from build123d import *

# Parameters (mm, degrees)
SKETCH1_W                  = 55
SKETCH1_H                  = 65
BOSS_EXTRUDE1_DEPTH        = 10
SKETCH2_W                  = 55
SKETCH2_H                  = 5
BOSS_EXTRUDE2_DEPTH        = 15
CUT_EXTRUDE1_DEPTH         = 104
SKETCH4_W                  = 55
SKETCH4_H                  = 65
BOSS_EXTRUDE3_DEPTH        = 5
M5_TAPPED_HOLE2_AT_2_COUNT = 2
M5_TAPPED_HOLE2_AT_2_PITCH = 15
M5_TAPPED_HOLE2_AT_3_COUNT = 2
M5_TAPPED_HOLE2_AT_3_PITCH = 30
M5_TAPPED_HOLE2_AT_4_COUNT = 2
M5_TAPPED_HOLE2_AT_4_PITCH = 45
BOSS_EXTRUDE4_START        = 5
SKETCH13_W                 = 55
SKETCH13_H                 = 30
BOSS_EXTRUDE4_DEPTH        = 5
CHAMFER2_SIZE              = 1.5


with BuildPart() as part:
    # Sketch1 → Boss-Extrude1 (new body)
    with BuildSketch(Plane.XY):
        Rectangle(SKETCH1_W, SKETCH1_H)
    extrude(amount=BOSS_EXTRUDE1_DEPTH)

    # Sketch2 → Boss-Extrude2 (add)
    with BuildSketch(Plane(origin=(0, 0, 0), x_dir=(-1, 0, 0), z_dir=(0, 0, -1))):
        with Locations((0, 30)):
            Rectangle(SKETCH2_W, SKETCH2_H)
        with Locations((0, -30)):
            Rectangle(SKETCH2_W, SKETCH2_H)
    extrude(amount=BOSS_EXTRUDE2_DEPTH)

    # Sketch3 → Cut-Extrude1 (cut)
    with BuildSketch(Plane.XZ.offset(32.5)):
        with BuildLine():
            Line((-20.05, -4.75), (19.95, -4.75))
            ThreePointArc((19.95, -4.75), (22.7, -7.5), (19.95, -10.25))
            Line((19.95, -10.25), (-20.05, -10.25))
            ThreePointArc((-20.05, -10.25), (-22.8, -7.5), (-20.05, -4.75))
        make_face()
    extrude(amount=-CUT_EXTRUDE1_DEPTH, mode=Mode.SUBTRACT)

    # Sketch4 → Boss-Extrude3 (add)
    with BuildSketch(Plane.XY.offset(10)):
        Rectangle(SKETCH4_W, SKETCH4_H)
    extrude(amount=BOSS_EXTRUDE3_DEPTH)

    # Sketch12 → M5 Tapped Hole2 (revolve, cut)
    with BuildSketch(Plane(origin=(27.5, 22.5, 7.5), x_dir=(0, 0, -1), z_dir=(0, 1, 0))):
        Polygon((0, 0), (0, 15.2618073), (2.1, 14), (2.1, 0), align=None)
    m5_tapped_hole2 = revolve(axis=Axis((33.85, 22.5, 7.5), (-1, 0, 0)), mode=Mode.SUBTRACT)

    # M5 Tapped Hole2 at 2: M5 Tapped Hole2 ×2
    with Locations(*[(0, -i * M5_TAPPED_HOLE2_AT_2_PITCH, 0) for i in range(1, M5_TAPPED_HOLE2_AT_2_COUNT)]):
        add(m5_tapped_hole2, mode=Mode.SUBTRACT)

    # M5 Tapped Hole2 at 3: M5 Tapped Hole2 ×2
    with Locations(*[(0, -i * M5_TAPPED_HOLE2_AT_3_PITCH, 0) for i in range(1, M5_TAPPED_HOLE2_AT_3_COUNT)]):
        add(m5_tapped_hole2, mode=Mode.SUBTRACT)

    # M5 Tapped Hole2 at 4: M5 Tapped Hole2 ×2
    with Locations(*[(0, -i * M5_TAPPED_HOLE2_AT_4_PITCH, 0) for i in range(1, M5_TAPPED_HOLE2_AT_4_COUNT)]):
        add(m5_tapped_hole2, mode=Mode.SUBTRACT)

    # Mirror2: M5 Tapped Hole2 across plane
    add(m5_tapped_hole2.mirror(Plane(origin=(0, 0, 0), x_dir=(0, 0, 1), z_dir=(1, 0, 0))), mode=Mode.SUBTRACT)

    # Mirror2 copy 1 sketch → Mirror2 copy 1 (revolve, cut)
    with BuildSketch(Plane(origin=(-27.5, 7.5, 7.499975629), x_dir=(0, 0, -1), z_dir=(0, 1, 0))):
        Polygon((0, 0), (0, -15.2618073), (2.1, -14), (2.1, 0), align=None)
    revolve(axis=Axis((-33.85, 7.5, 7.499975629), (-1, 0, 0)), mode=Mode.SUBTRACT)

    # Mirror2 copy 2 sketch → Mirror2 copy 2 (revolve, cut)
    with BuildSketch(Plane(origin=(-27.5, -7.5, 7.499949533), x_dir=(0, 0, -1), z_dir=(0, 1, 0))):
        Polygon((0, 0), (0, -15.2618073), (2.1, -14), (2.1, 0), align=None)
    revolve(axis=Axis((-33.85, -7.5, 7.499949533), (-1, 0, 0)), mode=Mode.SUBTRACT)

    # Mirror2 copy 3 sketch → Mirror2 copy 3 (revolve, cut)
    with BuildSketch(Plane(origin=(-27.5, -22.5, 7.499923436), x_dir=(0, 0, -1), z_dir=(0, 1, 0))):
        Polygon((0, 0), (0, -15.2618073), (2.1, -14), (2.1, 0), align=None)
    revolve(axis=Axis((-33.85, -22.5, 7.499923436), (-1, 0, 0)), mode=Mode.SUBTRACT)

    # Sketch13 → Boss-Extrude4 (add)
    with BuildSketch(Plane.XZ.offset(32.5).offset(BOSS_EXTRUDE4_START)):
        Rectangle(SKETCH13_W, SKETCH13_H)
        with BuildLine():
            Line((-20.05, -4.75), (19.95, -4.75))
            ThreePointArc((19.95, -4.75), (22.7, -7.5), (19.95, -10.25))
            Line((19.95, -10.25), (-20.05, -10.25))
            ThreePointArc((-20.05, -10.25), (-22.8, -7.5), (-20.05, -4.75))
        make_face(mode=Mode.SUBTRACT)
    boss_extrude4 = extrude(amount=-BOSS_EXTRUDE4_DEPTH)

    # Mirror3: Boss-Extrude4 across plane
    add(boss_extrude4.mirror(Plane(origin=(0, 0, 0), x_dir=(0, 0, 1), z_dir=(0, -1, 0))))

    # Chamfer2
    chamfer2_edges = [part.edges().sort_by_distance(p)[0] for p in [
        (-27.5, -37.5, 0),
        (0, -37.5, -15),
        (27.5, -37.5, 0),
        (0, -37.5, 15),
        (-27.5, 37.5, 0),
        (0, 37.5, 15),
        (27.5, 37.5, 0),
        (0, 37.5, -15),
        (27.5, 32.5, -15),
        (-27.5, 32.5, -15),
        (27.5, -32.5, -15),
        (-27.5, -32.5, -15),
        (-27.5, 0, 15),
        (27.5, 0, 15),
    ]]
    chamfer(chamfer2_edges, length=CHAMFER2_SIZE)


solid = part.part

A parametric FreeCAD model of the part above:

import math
import FreeCAD as App
import Part
import Sketcher
from FreeCAD import Vector
Q = App.Units.Quantity


def edges_at(feature, points):
    """Names of the edges that pass closest to the given points."""
    edges = feature.Shape.Edges
    near = lambda p: min(range(len(edges)), key=lambda i: edges[i].distToShape(Part.Vertex(*p))[0])
    return sorted({f"Edge{near(p) + 1}" for p in points})

doc = App.newDocument("Part")
params = doc.addObject("Spreadsheet::Sheet", "Params")
for row, (alias, value) in enumerate([
    ("sketch1_width", "55 mm"),
    ("sketch1_height", "65 mm"),
    ("pad1_length", "10 mm"),
    ("sketch2_width", "55 mm"),
    ("sketch2_height", "5 mm"),
    ("pad2_length", "15 mm"),
    ("sketch3_width", "40 mm"),
    ("sketch3_radius", "2.75 mm"),
    ("pocket1_length", "104 mm"),
    ("sketch4_width", "55 mm"),
    ("sketch4_height", "65 mm"),
    ("pad3_length", "5 mm"),
    ("sketch5_width", "14 mm"),
    ("sketch5_height", "2.1 mm"),
    ("groove_angle", "360 deg"),
    ("linearpattern_pitch", "15 mm"),
    ("linearpattern2_pitch", "30 mm"),
    ("linearpattern3_pitch", "45 mm"),
    ("sketch6_width", "14 mm"),
    ("sketch6_height", "2.1 mm"),
    ("groove2_angle", "360 deg"),
    ("sketch7_width", "14 mm"),
    ("sketch7_height", "2.1 mm"),
    ("groove3_angle", "360 deg"),
    ("sketch8_width", "14 mm"),
    ("sketch8_height", "2.1 mm"),
    ("groove4_angle", "360 deg"),
    ("sketch9_width", "55 mm"),
    ("sketch9_width2", "40 mm"),
    ("sketch9_height", "30 mm"),
    ("sketch9_radius", "2.75 mm"),
    ("pad4_length", "5 mm"),
    ("chamfer_size", "1.5 mm"),
], start=1):
    params.set(f"A{row}", alias)
    params.set(f"B{row}", "=" + value)
    params.setAlias(f"B{row}", alias)

body = doc.addObject("PartDesign::Body", "Body")

sketch1 = doc.addObject("Sketcher::SketchObject", "Sketch")
body.addObject(sketch1)
sketch1.AttachmentSupport = (doc.XY_Plane, [""])
sketch1.MapMode = "FlatFace"
sketch1.addGeometry([
    Part.LineSegment(Vector(-28, 32, 0), Vector(-28, -32, 0)),
    Part.LineSegment(Vector(-28, -32, 0), Vector(28, -32, 0)),
    Part.LineSegment(Vector(28, -32, 0), Vector(28, 32, 0)),
    Part.LineSegment(Vector(28, 32, 0), Vector(-28, 32, 0)),
], False)
sketch1.addConstraint([
    Sketcher.Constraint("Coincident", 0, 2, 1, 1),
    Sketcher.Constraint("Coincident", 1, 2, 2, 1),
    Sketcher.Constraint("Coincident", 2, 2, 3, 1),
    Sketcher.Constraint("Coincident", 3, 2, 0, 1),
    Sketcher.Constraint("Vertical", 0),
    Sketcher.Constraint("Horizontal", 1),
    Sketcher.Constraint("Vertical", 2),
    Sketcher.Constraint("Horizontal", 3),
    Sketcher.Constraint("Symmetric", 0, 2, 2, 2, -1, 1),
    Sketcher.Constraint("DistanceX", 1, 1, 1, 2, Q("55 mm")),
    Sketcher.Constraint("DistanceY", 0, 2, 0, 1, Q("65 mm")),
])
sketch1.setExpression("Constraints[9]", "Params.sketch1_width")
sketch1.setExpression("Constraints[10]", "Params.sketch1_height")
pad1 = doc.addObject("PartDesign::Pad", "Pad")
body.addObject(pad1)
pad1.Profile = sketch1
pad1.setExpression("Length", "Params.pad1_length")

sketch2 = doc.addObject("Sketcher::SketchObject", "Sketch001")
body.addObject(sketch2)
sketch2.AttachmentSupport = (doc.XY_Plane, [""])
sketch2.MapMode = "FlatFace"
sketch2.addGeometry([
    Part.LineSegment(Vector(28, 32, 0), Vector(28, 28, 0)),
    Part.LineSegment(Vector(28, 28, 0), Vector(-28, 28, 0)),
    Part.LineSegment(Vector(-28, 28, 0), Vector(-28, 32, 0)),
    Part.LineSegment(Vector(-28, 32, 0), Vector(28, 32, 0)),
    Part.LineSegment(Vector(28, -28, 0), Vector(28, -32, 0)),
    Part.LineSegment(Vector(28, -32, 0), Vector(-28, -32, 0)),
    Part.LineSegment(Vector(-28, -32, 0), Vector(-28, -28, 0)),
    Part.LineSegment(Vector(-28, -28, 0), Vector(28, -28, 0)),
], False)
sketch2.addConstraint([
    Sketcher.Constraint("Coincident", 0, 2, 1, 1),
    Sketcher.Constraint("Coincident", 1, 2, 2, 1),
    Sketcher.Constraint("Coincident", 2, 2, 3, 1),
    Sketcher.Constraint("Coincident", 3, 2, 0, 1),
    Sketcher.Constraint("Coincident", 4, 2, 5, 1),
    Sketcher.Constraint("Coincident", 5, 2, 6, 1),
    Sketcher.Constraint("Coincident", 6, 2, 7, 1),
    Sketcher.Constraint("Coincident", 7, 2, 4, 1),
    Sketcher.Constraint("Vertical", 0),
    Sketcher.Constraint("Horizontal", 1),
    Sketcher.Constraint("Vertical", 2),
    Sketcher.Constraint("Horizontal", 3),
    Sketcher.Constraint("Vertical", 4),
    Sketcher.Constraint("Horizontal", 5),
    Sketcher.Constraint("Vertical", 6),
    Sketcher.Constraint("Horizontal", 7),
    Sketcher.Constraint("Symmetric", 2, 2, 4, 2, -1, 1),
    Sketcher.Constraint("Symmetric", 0, 2, 6, 2, -1, 1),
    Sketcher.Constraint("Vertical", 3, 2, 4, 2),
    Sketcher.Constraint("DistanceX", 1, 2, 1, 1, Q("55 mm")),
    Sketcher.Constraint("DistanceY", 0, 2, 0, 1, Q("5 mm")),
    Sketcher.Constraint("DistanceY", 4, 2, 0, 2, Q("60 mm")),
])
sketch2.setExpression("Constraints[19]", "Params.sketch2_width")
sketch2.setExpression("Constraints[20]", "Params.sketch2_height")
pad2 = doc.addObject("PartDesign::Pad", "Pad001")
body.addObject(pad2)
pad2.Profile = sketch2
pad2.setExpression("Length", "Params.pad2_length")
pad2.Reversed = True

sketch3 = doc.addObject("Sketcher::SketchObject", "Sketch002")
body.addObject(sketch3)
sketch3.AttachmentSupport = (doc.XZ_Plane, [""])
sketch3.MapMode = "FlatFace"
sketch3.AttachmentOffset = App.Placement(Vector(0, 0, 32.5), App.Rotation())
sketch3.addGeometry([
    Part.LineSegment(Vector(19.9, -4.8, 0), Vector(-20.1, -4.8, 0)),
    Part.ArcOfCircle(Part.Circle(Vector(-20.1, -7.5, 0), Vector(0, 0, 1), 2.8), math.radians(90), math.radians(270)),
    Part.LineSegment(Vector(-20.1, -10.2, 0), Vector(19.9, -10.2, 0)),
    Part.ArcOfCircle(Part.Circle(Vector(19.9, -7.5, 0), Vector(0, 0, 1), 2.8), math.radians(-90), math.radians(90)),
], False)
sketch3.addConstraint([
    Sketcher.Constraint("Tangent", 0, 2, 1, 1),
    Sketcher.Constraint("Tangent", 1, 2, 2, 1),
    Sketcher.Constraint("Tangent", 2, 2, 3, 1),
    Sketcher.Constraint("Tangent", 3, 2, 0, 1),
    Sketcher.Constraint("Horizontal", 0),
    Sketcher.Constraint("Horizontal", 2),
    Sketcher.Constraint("DistanceX", 0, 2, 0, 1, Q("40 mm")),
    Sketcher.Constraint("Radius", 1, Q("2.75 mm")),
    Sketcher.Constraint("DistanceY", 1, 3, -1, 1, Q("7.5 mm")),
    Sketcher.Constraint("DistanceX", 1, 3, -1, 1, Q("20.05 mm")),
])
sketch3.setExpression("Constraints[6]", "Params.sketch3_width")
sketch3.setExpression("Constraints[7]", "Params.sketch3_radius")
pocket1 = doc.addObject("PartDesign::Pocket", "Pocket")
body.addObject(pocket1)
pocket1.Profile = sketch3
pocket1.setExpression("Length", "Params.pocket1_length")

sketch4 = doc.addObject("Sketcher::SketchObject", "Sketch003")
body.addObject(sketch4)
sketch4.AttachmentSupport = (doc.XY_Plane, [""])
sketch4.MapMode = "FlatFace"
sketch4.AttachmentOffset = App.Placement(Vector(0, 0, 10), App.Rotation())
sketch4.addGeometry([
    Part.LineSegment(Vector(-28, 32, 0), Vector(-28, -32, 0)),
    Part.LineSegment(Vector(-28, -32, 0), Vector(28, -32, 0)),
    Part.LineSegment(Vector(28, -32, 0), Vector(28, 32, 0)),
    Part.LineSegment(Vector(28, 32, 0), Vector(-28, 32, 0)),
], False)
sketch4.addConstraint([
    Sketcher.Constraint("Coincident", 0, 2, 1, 1),
    Sketcher.Constraint("Coincident", 1, 2, 2, 1),
    Sketcher.Constraint("Coincident", 2, 2, 3, 1),
    Sketcher.Constraint("Coincident", 3, 2, 0, 1),
    Sketcher.Constraint("Vertical", 0),
    Sketcher.Constraint("Horizontal", 1),
    Sketcher.Constraint("Vertical", 2),
    Sketcher.Constraint("Horizontal", 3),
    Sketcher.Constraint("Symmetric", 0, 2, 2, 2, -1, 1),
    Sketcher.Constraint("DistanceX", 1, 1, 1, 2, Q("55 mm")),
    Sketcher.Constraint("DistanceY", 0, 2, 0, 1, Q("65 mm")),
])
sketch4.setExpression("Constraints[9]", "Params.sketch4_width")
sketch4.setExpression("Constraints[10]", "Params.sketch4_height")
pad3 = doc.addObject("PartDesign::Pad", "Pad002")
body.addObject(pad3)
pad3.Profile = sketch4
pad3.setExpression("Length", "Params.pad3_length")

sketch5 = doc.addObject("Sketcher::SketchObject", "Sketch004")
body.addObject(sketch5)
sketch5.AttachmentSupport = (doc.XZ_Plane, [""])
sketch5.MapMode = "FlatFace"
sketch5.AttachmentOffset = App.Placement(Vector(0, 0, -22.5), App.Rotation())
sketch5.addGeometry([
    Part.LineSegment(Vector(12.2, 7.5, 0), Vector(27.5, 7.5, 0)),
    Part.LineSegment(Vector(27.5, 7.5, 0), Vector(27.5, 5.4, 0)),
    Part.LineSegment(Vector(27.5, 5.4, 0), Vector(13.5, 5.4, 0)),
    Part.LineSegment(Vector(13.5, 5.4, 0), Vector(12.2, 7.5, 0)),
], False)
sketch5.addGeometry(Part.LineSegment(Vector(27.5, 7.5, 0), Vector(12.2, 7.5, 0)), True)
sketch5.addConstraint([
    Sketcher.Constraint("Coincident", 0, 2, 1, 1),
    Sketcher.Constraint("Coincident", 1, 2, 2, 1),
    Sketcher.Constraint("Coincident", 2, 2, 3, 1),
    Sketcher.Constraint("Coincident", 3, 2, 0, 1),
    Sketcher.Constraint("Horizontal", 0),
    Sketcher.Constraint("Vertical", 1),
    Sketcher.Constraint("Horizontal", 2),
    Sketcher.Constraint("Horizontal", 4),
    Sketcher.Constraint("Coincident", 4, 1, 0, 2),
    Sketcher.Constraint("Equal", 0, 4),
    Sketcher.Constraint("DistanceX", 2, 2, 2, 1, Q("14 mm")),
    Sketcher.Constraint("Angle", 3, Q("121 deg")),
    Sketcher.Constraint("DistanceY", 1, 2, 1, 1, Q("2.1 mm")),
    Sketcher.Constraint("DistanceX", -1, 1, 0, 2, Q("27.5 mm")),
    Sketcher.Constraint("DistanceY", -1, 1, 0, 2, Q("7.5 mm")),
])
sketch5.setExpression("Constraints[10]", "Params.sketch5_width")
sketch5.setExpression("Constraints[12]", "Params.sketch5_height")
groove = doc.addObject("PartDesign::Groove", "Groove")
body.addObject(groove)
groove.Profile = sketch5
groove.ReferenceAxis = (sketch5, ["Axis0"])
groove.setExpression("Angle", "Params.groove_angle")
doc.recompute()

linearpattern = doc.addObject("PartDesign::LinearPattern", "LinearPattern")
body.addObject(linearpattern)
linearpattern.Originals = [groove]
linearpattern.Direction = (doc.Y_Axis, [""])
linearpattern.Mode = "offset"
linearpattern.setExpression("Offset", "Params.linearpattern_pitch")
linearpattern.Occurrences = 2
linearpattern.Reversed = True
body.Tip = linearpattern
doc.recompute()

linearpattern2 = doc.addObject("PartDesign::LinearPattern", "LinearPattern001")
body.addObject(linearpattern2)
linearpattern2.Originals = [groove]
linearpattern2.Direction = (doc.Y_Axis, [""])
linearpattern2.Mode = "offset"
linearpattern2.setExpression("Offset", "Params.linearpattern2_pitch")
linearpattern2.Occurrences = 2
linearpattern2.Reversed = True
body.Tip = linearpattern2
doc.recompute()

linearpattern3 = doc.addObject("PartDesign::LinearPattern", "LinearPattern002")
body.addObject(linearpattern3)
linearpattern3.Originals = [groove]
linearpattern3.Direction = (doc.Y_Axis, [""])
linearpattern3.Mode = "offset"
linearpattern3.setExpression("Offset", "Params.linearpattern3_pitch")
linearpattern3.Occurrences = 2
linearpattern3.Reversed = True
body.Tip = linearpattern3
doc.recompute()

mirrored = doc.addObject("PartDesign::Mirrored", "Mirrored")
body.addObject(mirrored)
mirrored.Originals = [groove]
mirrored.MirrorPlane = (doc.YZ_Plane, [""])
body.Tip = mirrored

sketch6 = doc.addObject("Sketcher::SketchObject", "Sketch005")
body.addObject(sketch6)
sketch6.AttachmentSupport = (doc.XZ_Plane, [""])
sketch6.MapMode = "FlatFace"
sketch6.AttachmentOffset = App.Placement(Vector(0, 0, -7.5), App.Rotation())
sketch6.addGeometry([
    Part.LineSegment(Vector(-27.5, 7.5, 0), Vector(-12.2, 7.5, 0)),
    Part.LineSegment(Vector(-12.2, 7.5, 0), Vector(-13.5, 5.4, 0)),
    Part.LineSegment(Vector(-13.5, 5.4, 0), Vector(-27.5, 5.4, 0)),
    Part.LineSegment(Vector(-27.5, 5.4, 0), Vector(-27.5, 7.5, 0)),
], False)
sketch6.addGeometry(Part.LineSegment(Vector(-12.2, 7.5, 0), Vector(-27.5, 7.5, 0)), True)
sketch6.addConstraint([
    Sketcher.Constraint("Coincident", 0, 2, 1, 1),
    Sketcher.Constraint("Coincident", 1, 2, 2, 1),
    Sketcher.Constraint("Coincident", 2, 2, 3, 1),
    Sketcher.Constraint("Coincident", 3, 2, 0, 1),
    Sketcher.Constraint("Horizontal", 0),
    Sketcher.Constraint("Horizontal", 2),
    Sketcher.Constraint("Vertical", 3),
    Sketcher.Constraint("Horizontal", 4),
    Sketcher.Constraint("Coincident", 4, 1, 0, 2),
    Sketcher.Constraint("Vertical", 2, 2, 4, 2),
    Sketcher.Constraint("DistanceX", 2, 2, 2, 1, Q("14 mm")),
    Sketcher.Constraint("Angle", 1, Q("-121 deg")),
    Sketcher.Constraint("DistanceY", 3, 1, 3, 2, Q("2.1 mm")),
    Sketcher.Constraint("DistanceX", 1, 2, -1, 1, Q("13.5 mm")),
    Sketcher.Constraint("DistanceY", -1, 1, 0, 2, Q("7.499976 mm")),
])
sketch6.setExpression("Constraints[10]", "Params.sketch6_width")
sketch6.setExpression("Constraints[12]", "Params.sketch6_height")
groove2 = doc.addObject("PartDesign::Groove", "Groove001")
body.addObject(groove2)
groove2.Profile = sketch6
groove2.ReferenceAxis = (sketch6, ["Axis0"])
groove2.setExpression("Angle", "Params.groove2_angle")

sketch7 = doc.addObject("Sketcher::SketchObject", "Sketch006")
body.addObject(sketch7)
sketch7.AttachmentSupport = (doc.XZ_Plane, [""])
sketch7.MapMode = "FlatFace"
sketch7.AttachmentOffset = App.Placement(Vector(0, 0, 7.5), App.Rotation())
sketch7.addGeometry([
    Part.LineSegment(Vector(-27.5, 7.5, 0), Vector(-12.2, 7.5, 0)),
    Part.LineSegment(Vector(-12.2, 7.5, 0), Vector(-13.5, 5.4, 0)),
    Part.LineSegment(Vector(-13.5, 5.4, 0), Vector(-27.5, 5.4, 0)),
    Part.LineSegment(Vector(-27.5, 5.4, 0), Vector(-27.5, 7.5, 0)),
], False)
sketch7.addGeometry(Part.LineSegment(Vector(-12.2, 7.5, 0), Vector(-27.5, 7.5, 0)), True)
sketch7.addConstraint([
    Sketcher.Constraint("Coincident", 0, 2, 1, 1),
    Sketcher.Constraint("Coincident", 1, 2, 2, 1),
    Sketcher.Constraint("Coincident", 2, 2, 3, 1),
    Sketcher.Constraint("Coincident", 3, 2, 0, 1),
    Sketcher.Constraint("Horizontal", 0),
    Sketcher.Constraint("Horizontal", 2),
    Sketcher.Constraint("Vertical", 3),
    Sketcher.Constraint("Horizontal", 4),
    Sketcher.Constraint("Coincident", 4, 1, 0, 2),
    Sketcher.Constraint("Vertical", 2, 2, 4, 2),
    Sketcher.Constraint("DistanceX", 2, 2, 2, 1, Q("14 mm")),
    Sketcher.Constraint("Angle", 1, Q("-121 deg")),
    Sketcher.Constraint("DistanceY", 3, 1, 3, 2, Q("2.1 mm")),
    Sketcher.Constraint("DistanceX", 1, 2, -1, 1, Q("13.5 mm")),
    Sketcher.Constraint("DistanceY", -1, 1, 0, 2, Q("7.49995 mm")),
])
sketch7.setExpression("Constraints[10]", "Params.sketch7_width")
sketch7.setExpression("Constraints[12]", "Params.sketch7_height")
groove3 = doc.addObject("PartDesign::Groove", "Groove002")
body.addObject(groove3)
groove3.Profile = sketch7
groove3.ReferenceAxis = (sketch7, ["Axis0"])
groove3.setExpression("Angle", "Params.groove3_angle")

sketch8 = doc.addObject("Sketcher::SketchObject", "Sketch007")
body.addObject(sketch8)
sketch8.AttachmentSupport = (doc.XZ_Plane, [""])
sketch8.MapMode = "FlatFace"
sketch8.AttachmentOffset = App.Placement(Vector(0, 0, 22.5), App.Rotation())
sketch8.addGeometry([
    Part.LineSegment(Vector(-27.5, 7.5, 0), Vector(-12.2, 7.5, 0)),
    Part.LineSegment(Vector(-12.2, 7.5, 0), Vector(-13.5, 5.4, 0)),
    Part.LineSegment(Vector(-13.5, 5.4, 0), Vector(-27.5, 5.4, 0)),
    Part.LineSegment(Vector(-27.5, 5.4, 0), Vector(-27.5, 7.5, 0)),
], False)
sketch8.addGeometry(Part.LineSegment(Vector(-12.2, 7.5, 0), Vector(-27.5, 7.5, 0)), True)
sketch8.addConstraint([
    Sketcher.Constraint("Coincident", 0, 2, 1, 1),
    Sketcher.Constraint("Coincident", 1, 2, 2, 1),
    Sketcher.Constraint("Coincident", 2, 2, 3, 1),
    Sketcher.Constraint("Coincident", 3, 2, 0, 1),
    Sketcher.Constraint("Horizontal", 0),
    Sketcher.Constraint("Horizontal", 2),
    Sketcher.Constraint("Vertical", 3),
    Sketcher.Constraint("Horizontal", 4),
    Sketcher.Constraint("Coincident", 4, 1, 0, 2),
    Sketcher.Constraint("Vertical", 2, 2, 4, 2),
    Sketcher.Constraint("DistanceX", 2, 2, 2, 1, Q("14 mm")),
    Sketcher.Constraint("Angle", 1, Q("-121 deg")),
    Sketcher.Constraint("DistanceY", 3, 1, 3, 2, Q("2.1 mm")),
    Sketcher.Constraint("DistanceX", 1, 2, -1, 1, Q("13.5 mm")),
    Sketcher.Constraint("DistanceY", -1, 1, 0, 2, Q("7.499923 mm")),
])
sketch8.setExpression("Constraints[10]", "Params.sketch8_width")
sketch8.setExpression("Constraints[12]", "Params.sketch8_height")
groove4 = doc.addObject("PartDesign::Groove", "Groove003")
body.addObject(groove4)
groove4.Profile = sketch8
groove4.ReferenceAxis = (sketch8, ["Axis0"])
groove4.setExpression("Angle", "Params.groove4_angle")

sketch9 = doc.addObject("Sketcher::SketchObject", "Sketch008")
body.addObject(sketch9)
sketch9.AttachmentSupport = (doc.XZ_Plane, [""])
sketch9.MapMode = "FlatFace"
sketch9.AttachmentOffset = App.Placement(Vector(0, 0, 37.5), App.Rotation())
sketch9.addGeometry([
    Part.LineSegment(Vector(-27.5, 15, 0), Vector(-27.5, -15, 0)),
    Part.LineSegment(Vector(-27.5, -15, 0), Vector(27.5, -15, 0)),
    Part.LineSegment(Vector(27.5, -15, 0), Vector(27.5, 15, 0)),
    Part.LineSegment(Vector(27.5, 15, 0), Vector(-27.5, 15, 0)),
    Part.ArcOfCircle(Part.Circle(Vector(-20.1, -7.5, 0), Vector(0, 0, 1), 2.8), math.radians(90), math.radians(270)),
    Part.LineSegment(Vector(-20.1, -4.8, 0), Vector(19.9, -4.8, 0)),
    Part.ArcOfCircle(Part.Circle(Vector(19.9, -7.5, 0), Vector(0, 0, 1), 2.8), math.radians(-90), math.radians(90)),
    Part.LineSegment(Vector(19.9, -10.2, 0), Vector(-20.1, -10.2, 0)),
], False)
sketch9.addConstraint([
    Sketcher.Constraint("Coincident", 0, 2, 1, 1),
    Sketcher.Constraint("Coincident", 1, 2, 2, 1),
    Sketcher.Constraint("Coincident", 2, 2, 3, 1),
    Sketcher.Constraint("Coincident", 3, 2, 0, 1),
    Sketcher.Constraint("Tangent", 4, 1, 5, 1),
    Sketcher.Constraint("Tangent", 5, 2, 6, 2),
    Sketcher.Constraint("Tangent", 6, 1, 7, 1),
    Sketcher.Constraint("Tangent", 7, 2, 4, 2),
    Sketcher.Constraint("Vertical", 0),
    Sketcher.Constraint("Horizontal", 1),
    Sketcher.Constraint("Vertical", 2),
    Sketcher.Constraint("Horizontal", 3),
    Sketcher.Constraint("Horizontal", 5),
    Sketcher.Constraint("Horizontal", 7),
    Sketcher.Constraint("Symmetric", 0, 2, 2, 2, -1, 1),
    Sketcher.Constraint("DistanceX", 1, 1, 1, 2, Q("55 mm")),
    Sketcher.Constraint("DistanceX", 5, 1, 5, 2, Q("40 mm")),
    Sketcher.Constraint("DistanceY", 0, 2, 0, 1, Q("30 mm")),
    Sketcher.Constraint("Radius", 4, Q("2.75 mm")),
    Sketcher.Constraint("DistanceY", 4, 3, -1, 1, Q("7.5 mm")),
    Sketcher.Constraint("DistanceX", 4, 3, -1, 1, Q("20.05 mm")),
])
sketch9.setExpression("Constraints[15]", "Params.sketch9_width")
sketch9.setExpression("Constraints[16]", "Params.sketch9_width2")
sketch9.setExpression("Constraints[17]", "Params.sketch9_height")
sketch9.setExpression("Constraints[18]", "Params.sketch9_radius")
pad4 = doc.addObject("PartDesign::Pad", "Pad003")
body.addObject(pad4)
pad4.Profile = sketch9
pad4.setExpression("Length", "Params.pad4_length")
pad4.Reversed = True
doc.recompute()

mirrored2 = doc.addObject("PartDesign::Mirrored", "Mirrored001")
body.addObject(mirrored2)
mirrored2.Originals = [pad4]
mirrored2.MirrorPlane = (doc.XZ_Plane, [""])
body.Tip = mirrored2
doc.recompute()

chamfer = doc.addObject("PartDesign::Chamfer", "Chamfer")
body.addObject(chamfer)
chamfer.Base = (mirrored2, edges_at(mirrored2, [
    (-27.5, -37.5, 0),
    (0, -37.5, -15),
    (27.5, -37.5, 0),
    (0, -37.5, 15),
    (-27.5, 37.5, 0),
    (0, 37.5, 15),
    (27.5, 37.5, 0),
    (0, 37.5, -15),
    (27.5, 32.5, -15),
    (-27.5, 32.5, -15),
    (27.5, -32.5, -15),
    (-27.5, -32.5, -15),
    (-27.5, 0, 15),
    (27.5, 0, 15),
]))
chamfer.setExpression("Size", "Params.chamfer_size")

doc.recompute()
